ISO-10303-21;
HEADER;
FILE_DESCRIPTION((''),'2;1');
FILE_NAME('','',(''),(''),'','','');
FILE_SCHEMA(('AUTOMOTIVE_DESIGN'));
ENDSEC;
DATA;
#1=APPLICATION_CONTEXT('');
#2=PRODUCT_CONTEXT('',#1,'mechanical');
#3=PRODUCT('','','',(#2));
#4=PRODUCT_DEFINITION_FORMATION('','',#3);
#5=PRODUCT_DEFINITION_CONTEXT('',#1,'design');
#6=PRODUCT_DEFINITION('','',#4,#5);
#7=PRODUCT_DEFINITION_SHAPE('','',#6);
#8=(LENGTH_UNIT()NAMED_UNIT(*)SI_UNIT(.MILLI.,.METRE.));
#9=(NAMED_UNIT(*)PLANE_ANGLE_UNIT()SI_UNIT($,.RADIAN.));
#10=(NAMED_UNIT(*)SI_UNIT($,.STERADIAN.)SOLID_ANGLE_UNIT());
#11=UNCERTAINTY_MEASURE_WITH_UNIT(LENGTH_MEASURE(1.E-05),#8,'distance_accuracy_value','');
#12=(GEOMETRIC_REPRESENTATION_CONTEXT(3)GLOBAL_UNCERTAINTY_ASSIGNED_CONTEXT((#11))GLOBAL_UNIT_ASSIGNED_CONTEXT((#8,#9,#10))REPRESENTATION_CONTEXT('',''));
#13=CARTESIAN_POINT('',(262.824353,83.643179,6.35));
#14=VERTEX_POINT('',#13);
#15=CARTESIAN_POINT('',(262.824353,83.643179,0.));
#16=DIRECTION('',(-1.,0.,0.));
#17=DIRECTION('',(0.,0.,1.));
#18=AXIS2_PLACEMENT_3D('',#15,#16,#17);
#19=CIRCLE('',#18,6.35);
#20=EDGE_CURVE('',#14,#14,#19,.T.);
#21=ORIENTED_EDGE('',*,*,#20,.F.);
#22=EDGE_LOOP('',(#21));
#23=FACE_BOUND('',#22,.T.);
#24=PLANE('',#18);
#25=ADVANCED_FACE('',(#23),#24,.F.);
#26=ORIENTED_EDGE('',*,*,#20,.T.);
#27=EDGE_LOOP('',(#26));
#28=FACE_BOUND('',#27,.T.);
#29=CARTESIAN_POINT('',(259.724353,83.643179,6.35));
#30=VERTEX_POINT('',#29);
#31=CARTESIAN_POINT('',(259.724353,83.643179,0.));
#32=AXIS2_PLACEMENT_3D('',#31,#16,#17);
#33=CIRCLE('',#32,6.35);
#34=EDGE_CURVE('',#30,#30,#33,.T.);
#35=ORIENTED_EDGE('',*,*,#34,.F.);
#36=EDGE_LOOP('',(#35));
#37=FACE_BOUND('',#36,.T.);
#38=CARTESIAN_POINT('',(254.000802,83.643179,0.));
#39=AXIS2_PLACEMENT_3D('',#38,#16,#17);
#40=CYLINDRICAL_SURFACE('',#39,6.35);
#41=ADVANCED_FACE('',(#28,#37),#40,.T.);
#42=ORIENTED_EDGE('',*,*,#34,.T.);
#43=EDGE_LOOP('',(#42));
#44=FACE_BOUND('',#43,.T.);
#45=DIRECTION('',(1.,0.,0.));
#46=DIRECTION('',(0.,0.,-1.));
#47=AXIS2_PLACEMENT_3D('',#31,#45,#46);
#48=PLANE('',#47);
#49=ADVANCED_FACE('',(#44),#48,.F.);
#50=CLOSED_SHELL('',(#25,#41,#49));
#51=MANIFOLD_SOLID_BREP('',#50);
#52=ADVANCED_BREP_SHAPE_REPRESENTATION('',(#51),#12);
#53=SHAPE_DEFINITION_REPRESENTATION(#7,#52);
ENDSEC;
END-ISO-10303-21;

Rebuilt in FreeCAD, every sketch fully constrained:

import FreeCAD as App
import Part
import Sketcher
from FreeCAD import Vector


def add_polygon(sketch, points):
    """Adds a closed chain of lines whose ends are joined by coincident constraints."""
    first, n = sketch.GeometryCount, len(points)
    for a, b in zip(points, points[1:] + points[:1]):
        sketch.addGeometry(Part.LineSegment(App.Vector(*a, 0), App.Vector(*b, 0)), False)
    for i in range(n):
        sketch.addConstraint(Sketcher.Constraint("Coincident", first + i, 2, first + (i + 1) % n, 1))

doc = App.newDocument("Part")
body = doc.addObject("PartDesign::Body", "Body")

# Sketch on XY plane
sketch1 = body.newObject("Sketcher::SketchObject", "Sketch")
sketch1.AttachmentSupport = (doc.getObject("XY_Plane"), [""])
sketch1.MapMode = "FlatFace"
add_polygon(sketch1, [(259.7, 90), (259.7, 83.6), (262.8, 83.6), (262.8, 90)])  # lines 0-3
sketch1.addGeometry(Part.LineSegment(Vector(259.7, 83.6, 0), Vector(262.8, 83.6, 0)), True)  # axis
sketch1.addConstraint(Sketcher.Constraint("Vertical", 0))
sketch1.addConstraint(Sketcher.Constraint("Horizontal", 1))
sketch1.addConstraint(Sketcher.Constraint("Vertical", 2))
sketch1.addConstraint(Sketcher.Constraint("Horizontal", 3))
sketch1.addConstraint(Sketcher.Constraint("Horizontal", 4))
sketch1.addConstraint(Sketcher.Constraint("Coincident", 4, 1, 0, 2))
sketch1.addConstraint(Sketcher.Constraint("Vertical", 2, 2, 4, 2))
sketch1.addConstraint(Sketcher.Constraint("DistanceX", 1, 1, 1, 2, 3.1))
sketch1.addConstraint(Sketcher.Constraint("DistanceY", 0, 2, 0, 1, 6.35))
sketch1.addConstraint(Sketcher.Constraint("DistanceY", -1, 1, 0, 2, 83.643179))
sketch1.addConstraint(Sketcher.Constraint("DistanceX", -1, 1, 0, 2, 259.724353))
revolution = body.newObject("PartDesign::Revolution", "Revolution")
revolution.Profile = sketch1
revolution.ReferenceAxis = (sketch1, ["Axis0"])
revolution.Angle = 360

doc.recompute()
